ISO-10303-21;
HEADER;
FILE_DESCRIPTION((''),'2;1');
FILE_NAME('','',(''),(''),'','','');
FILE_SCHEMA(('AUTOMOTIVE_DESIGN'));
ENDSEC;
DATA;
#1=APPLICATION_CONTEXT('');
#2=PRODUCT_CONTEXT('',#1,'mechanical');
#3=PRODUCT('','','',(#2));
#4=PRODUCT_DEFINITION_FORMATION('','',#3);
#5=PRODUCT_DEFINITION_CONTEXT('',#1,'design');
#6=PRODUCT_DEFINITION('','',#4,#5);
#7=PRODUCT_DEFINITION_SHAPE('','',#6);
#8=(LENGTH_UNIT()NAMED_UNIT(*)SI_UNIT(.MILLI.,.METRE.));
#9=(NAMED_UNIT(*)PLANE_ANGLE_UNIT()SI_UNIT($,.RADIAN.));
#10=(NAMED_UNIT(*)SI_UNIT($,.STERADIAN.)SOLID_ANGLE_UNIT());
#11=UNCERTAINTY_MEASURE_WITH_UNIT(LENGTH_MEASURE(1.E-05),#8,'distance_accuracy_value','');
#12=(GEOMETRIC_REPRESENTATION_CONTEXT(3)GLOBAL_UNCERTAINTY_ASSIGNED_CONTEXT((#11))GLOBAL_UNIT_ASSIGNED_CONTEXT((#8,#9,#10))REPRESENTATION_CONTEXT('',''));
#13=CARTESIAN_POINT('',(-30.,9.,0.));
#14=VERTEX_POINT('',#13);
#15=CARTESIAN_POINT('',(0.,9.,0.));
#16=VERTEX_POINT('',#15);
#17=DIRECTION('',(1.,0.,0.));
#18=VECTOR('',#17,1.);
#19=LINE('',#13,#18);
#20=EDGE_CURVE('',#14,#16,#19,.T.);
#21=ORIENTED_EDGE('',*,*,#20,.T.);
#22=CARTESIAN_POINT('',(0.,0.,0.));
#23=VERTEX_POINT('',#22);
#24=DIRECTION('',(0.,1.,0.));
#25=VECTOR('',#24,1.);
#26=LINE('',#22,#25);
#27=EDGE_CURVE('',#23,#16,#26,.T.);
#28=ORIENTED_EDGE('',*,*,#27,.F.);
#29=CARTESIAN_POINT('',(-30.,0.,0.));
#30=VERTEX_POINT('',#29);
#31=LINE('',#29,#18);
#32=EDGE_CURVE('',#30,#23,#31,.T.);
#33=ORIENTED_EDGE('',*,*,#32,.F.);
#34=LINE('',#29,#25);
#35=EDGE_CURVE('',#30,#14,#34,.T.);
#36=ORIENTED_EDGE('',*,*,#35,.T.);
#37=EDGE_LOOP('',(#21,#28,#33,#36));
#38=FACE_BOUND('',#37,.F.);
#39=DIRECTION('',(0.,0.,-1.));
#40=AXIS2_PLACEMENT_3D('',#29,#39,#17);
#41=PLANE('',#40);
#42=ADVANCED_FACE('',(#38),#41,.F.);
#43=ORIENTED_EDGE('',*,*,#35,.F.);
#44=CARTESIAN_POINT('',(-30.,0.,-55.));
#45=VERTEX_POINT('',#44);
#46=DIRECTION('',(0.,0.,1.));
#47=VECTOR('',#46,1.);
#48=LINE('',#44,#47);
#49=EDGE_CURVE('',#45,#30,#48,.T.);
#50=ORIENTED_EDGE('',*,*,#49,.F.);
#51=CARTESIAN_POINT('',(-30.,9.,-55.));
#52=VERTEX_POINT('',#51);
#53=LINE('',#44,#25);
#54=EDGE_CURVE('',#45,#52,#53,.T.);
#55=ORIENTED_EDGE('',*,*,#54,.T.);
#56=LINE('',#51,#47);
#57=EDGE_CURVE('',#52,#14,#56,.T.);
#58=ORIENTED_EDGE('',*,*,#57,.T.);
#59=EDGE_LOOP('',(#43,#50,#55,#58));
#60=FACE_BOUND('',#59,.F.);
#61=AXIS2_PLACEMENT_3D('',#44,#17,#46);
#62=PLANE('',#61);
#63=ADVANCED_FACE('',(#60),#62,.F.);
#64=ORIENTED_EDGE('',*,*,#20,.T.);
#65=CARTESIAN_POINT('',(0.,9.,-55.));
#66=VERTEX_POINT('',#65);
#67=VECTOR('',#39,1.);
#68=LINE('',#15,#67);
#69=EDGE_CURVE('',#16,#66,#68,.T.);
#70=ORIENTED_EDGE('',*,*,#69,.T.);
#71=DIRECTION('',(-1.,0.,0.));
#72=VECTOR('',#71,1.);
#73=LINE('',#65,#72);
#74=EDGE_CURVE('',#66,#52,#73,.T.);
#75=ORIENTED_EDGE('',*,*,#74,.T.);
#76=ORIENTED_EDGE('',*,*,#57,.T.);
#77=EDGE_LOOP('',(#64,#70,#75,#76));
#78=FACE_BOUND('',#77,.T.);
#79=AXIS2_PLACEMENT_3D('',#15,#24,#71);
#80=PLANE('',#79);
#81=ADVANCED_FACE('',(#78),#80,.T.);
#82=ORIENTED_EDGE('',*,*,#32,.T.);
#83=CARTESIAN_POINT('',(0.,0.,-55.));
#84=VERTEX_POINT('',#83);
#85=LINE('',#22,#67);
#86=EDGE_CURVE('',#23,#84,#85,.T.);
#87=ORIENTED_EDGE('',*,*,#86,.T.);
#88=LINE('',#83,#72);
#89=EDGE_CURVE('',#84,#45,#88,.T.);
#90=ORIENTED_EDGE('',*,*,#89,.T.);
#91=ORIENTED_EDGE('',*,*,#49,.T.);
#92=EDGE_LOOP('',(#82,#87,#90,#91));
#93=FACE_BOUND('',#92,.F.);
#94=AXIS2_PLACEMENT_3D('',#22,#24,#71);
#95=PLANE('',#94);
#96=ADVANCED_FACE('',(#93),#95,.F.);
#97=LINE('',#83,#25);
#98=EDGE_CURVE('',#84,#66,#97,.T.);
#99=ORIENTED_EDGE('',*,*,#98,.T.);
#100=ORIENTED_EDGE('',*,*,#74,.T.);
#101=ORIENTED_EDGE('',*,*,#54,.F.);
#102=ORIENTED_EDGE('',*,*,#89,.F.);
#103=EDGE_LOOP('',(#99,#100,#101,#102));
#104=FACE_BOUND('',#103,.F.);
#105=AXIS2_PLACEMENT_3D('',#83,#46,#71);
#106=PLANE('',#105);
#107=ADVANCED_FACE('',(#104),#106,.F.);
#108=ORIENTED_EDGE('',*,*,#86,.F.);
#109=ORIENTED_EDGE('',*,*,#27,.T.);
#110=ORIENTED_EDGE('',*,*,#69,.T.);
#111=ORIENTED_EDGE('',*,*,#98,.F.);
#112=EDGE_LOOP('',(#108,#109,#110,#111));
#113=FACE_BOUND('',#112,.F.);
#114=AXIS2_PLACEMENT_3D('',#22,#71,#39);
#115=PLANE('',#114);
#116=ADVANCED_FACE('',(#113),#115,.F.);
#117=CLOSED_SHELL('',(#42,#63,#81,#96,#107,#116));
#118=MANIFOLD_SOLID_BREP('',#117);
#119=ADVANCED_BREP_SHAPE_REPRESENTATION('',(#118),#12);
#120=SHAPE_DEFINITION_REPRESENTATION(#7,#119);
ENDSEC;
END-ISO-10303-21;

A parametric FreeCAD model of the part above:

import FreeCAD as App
import Part
import Sketcher
from FreeCAD import Vector
Q = App.Units.Quantity

doc = App.newDocument("Part")
body = doc.addObject("PartDesign::Body", "Body")

sketch1 = doc.addObject("Sketcher::SketchObject", "Sketch")
body.addObject(sketch1)
sketch1.AttachmentSupport = (doc.XZ_Plane, [""])
sketch1.MapMode = "FlatFace"
sketch1.addGeometry([
    Part.LineSegment(Vector(-30, 0, 0), Vector(0, 0, 0)),
    Part.LineSegment(Vector(0, 0, 0), Vector(0, -55, 0)),
    Part.LineSegment(Vector(0, -55, 0), Vector(-30, -55, 0)),
    Part.LineSegment(Vector(-30, -55, 0), Vector(-30, 0, 0)),
], False)
sketch1.addConstraint([
    Sketcher.Constraint("Coincident", 0, 2, 1, 1),
    Sketcher.Constraint("Coincident", 1, 2, 2, 1),
    Sketcher.Constraint("Coincident", 2, 2, 3, 1),
    Sketcher.Constraint("Coincident", 3, 2, 0, 1),
    Sketcher.Constraint("Horizontal", 0),
    Sketcher.Constraint("Vertical", 1),
    Sketcher.Constraint("Horizontal", 2),
    Sketcher.Constraint("Vertical", 3),
    Sketcher.Constraint("Coincident", 0, 2, -1, 1),
    Sketcher.Constraint("DistanceX", 0, 1, 0, 2, Q("30 mm")),
    Sketcher.Constraint("DistanceY", 1, 2, 1, 1, Q("55 mm")),
])
pad1 = doc.addObject("PartDesign::Pad", "Pad")
body.addObject(pad1)
pad1.Profile = sketch1
pad1.Length = 9
pad1.Reversed = True

doc.recompute()
